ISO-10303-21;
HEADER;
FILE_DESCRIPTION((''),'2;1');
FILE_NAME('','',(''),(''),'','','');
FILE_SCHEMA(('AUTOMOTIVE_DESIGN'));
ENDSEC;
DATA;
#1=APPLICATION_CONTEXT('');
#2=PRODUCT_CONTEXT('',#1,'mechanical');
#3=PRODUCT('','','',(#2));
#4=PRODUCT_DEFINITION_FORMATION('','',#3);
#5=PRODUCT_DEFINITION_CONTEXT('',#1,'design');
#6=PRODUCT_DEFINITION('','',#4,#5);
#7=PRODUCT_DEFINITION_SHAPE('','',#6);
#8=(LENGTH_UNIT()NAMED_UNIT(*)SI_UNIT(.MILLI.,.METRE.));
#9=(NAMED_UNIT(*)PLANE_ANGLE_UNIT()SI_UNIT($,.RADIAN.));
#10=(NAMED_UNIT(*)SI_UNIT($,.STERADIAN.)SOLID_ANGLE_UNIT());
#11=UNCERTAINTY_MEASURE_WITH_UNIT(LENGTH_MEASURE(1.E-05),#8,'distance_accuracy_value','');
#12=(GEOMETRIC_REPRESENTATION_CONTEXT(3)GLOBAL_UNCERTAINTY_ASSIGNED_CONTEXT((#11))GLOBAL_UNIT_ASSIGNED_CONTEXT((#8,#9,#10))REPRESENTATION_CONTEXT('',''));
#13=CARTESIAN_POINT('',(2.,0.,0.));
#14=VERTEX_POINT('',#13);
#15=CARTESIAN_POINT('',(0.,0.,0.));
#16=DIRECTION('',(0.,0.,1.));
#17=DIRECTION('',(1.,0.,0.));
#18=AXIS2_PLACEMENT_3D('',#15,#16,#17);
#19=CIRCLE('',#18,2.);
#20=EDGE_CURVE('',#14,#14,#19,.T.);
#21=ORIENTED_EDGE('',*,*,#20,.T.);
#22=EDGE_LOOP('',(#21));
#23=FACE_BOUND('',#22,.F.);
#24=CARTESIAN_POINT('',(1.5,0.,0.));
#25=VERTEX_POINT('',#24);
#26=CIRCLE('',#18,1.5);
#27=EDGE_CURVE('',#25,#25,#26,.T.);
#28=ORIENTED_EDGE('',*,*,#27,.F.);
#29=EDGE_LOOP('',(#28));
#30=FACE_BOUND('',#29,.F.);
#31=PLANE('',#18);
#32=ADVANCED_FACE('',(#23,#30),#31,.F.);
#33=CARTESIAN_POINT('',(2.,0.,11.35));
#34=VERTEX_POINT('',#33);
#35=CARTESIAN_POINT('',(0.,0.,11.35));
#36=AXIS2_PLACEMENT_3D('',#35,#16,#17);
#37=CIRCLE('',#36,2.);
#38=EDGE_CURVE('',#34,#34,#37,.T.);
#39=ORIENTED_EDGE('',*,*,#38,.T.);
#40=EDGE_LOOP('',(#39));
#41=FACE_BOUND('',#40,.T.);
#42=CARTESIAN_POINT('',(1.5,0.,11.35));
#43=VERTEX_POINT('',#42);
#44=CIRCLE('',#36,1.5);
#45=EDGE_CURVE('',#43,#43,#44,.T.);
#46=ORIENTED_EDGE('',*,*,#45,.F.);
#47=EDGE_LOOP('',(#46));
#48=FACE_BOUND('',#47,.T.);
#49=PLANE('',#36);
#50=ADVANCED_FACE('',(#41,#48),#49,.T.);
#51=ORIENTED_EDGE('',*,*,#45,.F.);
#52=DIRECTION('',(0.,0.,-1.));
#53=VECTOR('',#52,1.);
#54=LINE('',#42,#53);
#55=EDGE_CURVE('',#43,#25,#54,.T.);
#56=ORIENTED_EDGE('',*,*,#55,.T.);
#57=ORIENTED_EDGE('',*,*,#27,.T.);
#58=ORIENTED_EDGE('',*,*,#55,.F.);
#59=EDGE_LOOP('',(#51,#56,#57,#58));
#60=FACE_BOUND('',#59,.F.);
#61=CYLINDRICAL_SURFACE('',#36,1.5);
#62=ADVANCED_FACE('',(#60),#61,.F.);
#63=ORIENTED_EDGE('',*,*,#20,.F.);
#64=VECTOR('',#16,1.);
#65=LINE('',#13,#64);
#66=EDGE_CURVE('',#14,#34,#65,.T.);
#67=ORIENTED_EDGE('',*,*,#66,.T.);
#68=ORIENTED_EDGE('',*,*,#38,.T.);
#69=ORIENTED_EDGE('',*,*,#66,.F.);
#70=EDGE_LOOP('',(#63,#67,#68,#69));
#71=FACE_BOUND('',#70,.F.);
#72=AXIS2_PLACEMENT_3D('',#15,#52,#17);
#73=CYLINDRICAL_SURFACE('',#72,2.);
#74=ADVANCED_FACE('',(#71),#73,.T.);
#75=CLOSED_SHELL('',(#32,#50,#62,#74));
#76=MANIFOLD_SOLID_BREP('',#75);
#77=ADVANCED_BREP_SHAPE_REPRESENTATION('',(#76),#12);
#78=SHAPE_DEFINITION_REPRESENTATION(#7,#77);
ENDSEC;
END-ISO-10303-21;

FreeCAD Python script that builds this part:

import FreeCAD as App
import Part
import Sketcher
from FreeCAD import Vector
Q = App.Units.Quantity

doc = App.newDocument("Part")
body = doc.addObject("PartDesign::Body", "Body")

# Sketch on XY plane
sketch1 = body.newObject("Sketcher::SketchObject", "Sketch")
sketch1.AttachmentSupport = (doc.getObject("XY_Plane"), [""])
sketch1.MapMode = "FlatFace"
sketch1.addGeometry(Part.Circle(Vector(0, 0, 0), Vector(0, 0, 1), 2), False)
sketch1.addConstraint(Sketcher.Constraint("Coincident", 0, 3, -1, 1))
sketch1.addConstraint(Sketcher.Constraint("Diameter", 0, Q("4 mm")))
pad1 = body.newObject("PartDesign::Pad", "Pad")
pad1.Profile = sketch1
pad1.Length = 11.35

# Sketch on XY plane
sketch2 = body.newObject("Sketcher::SketchObject", "Sketch001")
sketch2.AttachmentSupport = (doc.getObject("XY_Plane"), [""])
sketch2.MapMode = "FlatFace"
sketch2.AttachmentOffset = App.Placement(Vector(0, 0, 11.35), App.Rotation())
sketch2.addGeometry(Part.Circle(Vector(0, 0, 0), Vector(0, 0, 1), 1.5), False)
sketch2.addConstraint(Sketcher.Constraint("Coincident", 0, 3, -1, 1))
sketch2.addConstraint(Sketcher.Constraint("Diameter", 0, Q("3 mm")))
pocket1 = body.newObject("PartDesign::Pocket", "Pocket")
pocket1.Profile = sketch2
pocket1.Length = 11.35

doc.recompute()
